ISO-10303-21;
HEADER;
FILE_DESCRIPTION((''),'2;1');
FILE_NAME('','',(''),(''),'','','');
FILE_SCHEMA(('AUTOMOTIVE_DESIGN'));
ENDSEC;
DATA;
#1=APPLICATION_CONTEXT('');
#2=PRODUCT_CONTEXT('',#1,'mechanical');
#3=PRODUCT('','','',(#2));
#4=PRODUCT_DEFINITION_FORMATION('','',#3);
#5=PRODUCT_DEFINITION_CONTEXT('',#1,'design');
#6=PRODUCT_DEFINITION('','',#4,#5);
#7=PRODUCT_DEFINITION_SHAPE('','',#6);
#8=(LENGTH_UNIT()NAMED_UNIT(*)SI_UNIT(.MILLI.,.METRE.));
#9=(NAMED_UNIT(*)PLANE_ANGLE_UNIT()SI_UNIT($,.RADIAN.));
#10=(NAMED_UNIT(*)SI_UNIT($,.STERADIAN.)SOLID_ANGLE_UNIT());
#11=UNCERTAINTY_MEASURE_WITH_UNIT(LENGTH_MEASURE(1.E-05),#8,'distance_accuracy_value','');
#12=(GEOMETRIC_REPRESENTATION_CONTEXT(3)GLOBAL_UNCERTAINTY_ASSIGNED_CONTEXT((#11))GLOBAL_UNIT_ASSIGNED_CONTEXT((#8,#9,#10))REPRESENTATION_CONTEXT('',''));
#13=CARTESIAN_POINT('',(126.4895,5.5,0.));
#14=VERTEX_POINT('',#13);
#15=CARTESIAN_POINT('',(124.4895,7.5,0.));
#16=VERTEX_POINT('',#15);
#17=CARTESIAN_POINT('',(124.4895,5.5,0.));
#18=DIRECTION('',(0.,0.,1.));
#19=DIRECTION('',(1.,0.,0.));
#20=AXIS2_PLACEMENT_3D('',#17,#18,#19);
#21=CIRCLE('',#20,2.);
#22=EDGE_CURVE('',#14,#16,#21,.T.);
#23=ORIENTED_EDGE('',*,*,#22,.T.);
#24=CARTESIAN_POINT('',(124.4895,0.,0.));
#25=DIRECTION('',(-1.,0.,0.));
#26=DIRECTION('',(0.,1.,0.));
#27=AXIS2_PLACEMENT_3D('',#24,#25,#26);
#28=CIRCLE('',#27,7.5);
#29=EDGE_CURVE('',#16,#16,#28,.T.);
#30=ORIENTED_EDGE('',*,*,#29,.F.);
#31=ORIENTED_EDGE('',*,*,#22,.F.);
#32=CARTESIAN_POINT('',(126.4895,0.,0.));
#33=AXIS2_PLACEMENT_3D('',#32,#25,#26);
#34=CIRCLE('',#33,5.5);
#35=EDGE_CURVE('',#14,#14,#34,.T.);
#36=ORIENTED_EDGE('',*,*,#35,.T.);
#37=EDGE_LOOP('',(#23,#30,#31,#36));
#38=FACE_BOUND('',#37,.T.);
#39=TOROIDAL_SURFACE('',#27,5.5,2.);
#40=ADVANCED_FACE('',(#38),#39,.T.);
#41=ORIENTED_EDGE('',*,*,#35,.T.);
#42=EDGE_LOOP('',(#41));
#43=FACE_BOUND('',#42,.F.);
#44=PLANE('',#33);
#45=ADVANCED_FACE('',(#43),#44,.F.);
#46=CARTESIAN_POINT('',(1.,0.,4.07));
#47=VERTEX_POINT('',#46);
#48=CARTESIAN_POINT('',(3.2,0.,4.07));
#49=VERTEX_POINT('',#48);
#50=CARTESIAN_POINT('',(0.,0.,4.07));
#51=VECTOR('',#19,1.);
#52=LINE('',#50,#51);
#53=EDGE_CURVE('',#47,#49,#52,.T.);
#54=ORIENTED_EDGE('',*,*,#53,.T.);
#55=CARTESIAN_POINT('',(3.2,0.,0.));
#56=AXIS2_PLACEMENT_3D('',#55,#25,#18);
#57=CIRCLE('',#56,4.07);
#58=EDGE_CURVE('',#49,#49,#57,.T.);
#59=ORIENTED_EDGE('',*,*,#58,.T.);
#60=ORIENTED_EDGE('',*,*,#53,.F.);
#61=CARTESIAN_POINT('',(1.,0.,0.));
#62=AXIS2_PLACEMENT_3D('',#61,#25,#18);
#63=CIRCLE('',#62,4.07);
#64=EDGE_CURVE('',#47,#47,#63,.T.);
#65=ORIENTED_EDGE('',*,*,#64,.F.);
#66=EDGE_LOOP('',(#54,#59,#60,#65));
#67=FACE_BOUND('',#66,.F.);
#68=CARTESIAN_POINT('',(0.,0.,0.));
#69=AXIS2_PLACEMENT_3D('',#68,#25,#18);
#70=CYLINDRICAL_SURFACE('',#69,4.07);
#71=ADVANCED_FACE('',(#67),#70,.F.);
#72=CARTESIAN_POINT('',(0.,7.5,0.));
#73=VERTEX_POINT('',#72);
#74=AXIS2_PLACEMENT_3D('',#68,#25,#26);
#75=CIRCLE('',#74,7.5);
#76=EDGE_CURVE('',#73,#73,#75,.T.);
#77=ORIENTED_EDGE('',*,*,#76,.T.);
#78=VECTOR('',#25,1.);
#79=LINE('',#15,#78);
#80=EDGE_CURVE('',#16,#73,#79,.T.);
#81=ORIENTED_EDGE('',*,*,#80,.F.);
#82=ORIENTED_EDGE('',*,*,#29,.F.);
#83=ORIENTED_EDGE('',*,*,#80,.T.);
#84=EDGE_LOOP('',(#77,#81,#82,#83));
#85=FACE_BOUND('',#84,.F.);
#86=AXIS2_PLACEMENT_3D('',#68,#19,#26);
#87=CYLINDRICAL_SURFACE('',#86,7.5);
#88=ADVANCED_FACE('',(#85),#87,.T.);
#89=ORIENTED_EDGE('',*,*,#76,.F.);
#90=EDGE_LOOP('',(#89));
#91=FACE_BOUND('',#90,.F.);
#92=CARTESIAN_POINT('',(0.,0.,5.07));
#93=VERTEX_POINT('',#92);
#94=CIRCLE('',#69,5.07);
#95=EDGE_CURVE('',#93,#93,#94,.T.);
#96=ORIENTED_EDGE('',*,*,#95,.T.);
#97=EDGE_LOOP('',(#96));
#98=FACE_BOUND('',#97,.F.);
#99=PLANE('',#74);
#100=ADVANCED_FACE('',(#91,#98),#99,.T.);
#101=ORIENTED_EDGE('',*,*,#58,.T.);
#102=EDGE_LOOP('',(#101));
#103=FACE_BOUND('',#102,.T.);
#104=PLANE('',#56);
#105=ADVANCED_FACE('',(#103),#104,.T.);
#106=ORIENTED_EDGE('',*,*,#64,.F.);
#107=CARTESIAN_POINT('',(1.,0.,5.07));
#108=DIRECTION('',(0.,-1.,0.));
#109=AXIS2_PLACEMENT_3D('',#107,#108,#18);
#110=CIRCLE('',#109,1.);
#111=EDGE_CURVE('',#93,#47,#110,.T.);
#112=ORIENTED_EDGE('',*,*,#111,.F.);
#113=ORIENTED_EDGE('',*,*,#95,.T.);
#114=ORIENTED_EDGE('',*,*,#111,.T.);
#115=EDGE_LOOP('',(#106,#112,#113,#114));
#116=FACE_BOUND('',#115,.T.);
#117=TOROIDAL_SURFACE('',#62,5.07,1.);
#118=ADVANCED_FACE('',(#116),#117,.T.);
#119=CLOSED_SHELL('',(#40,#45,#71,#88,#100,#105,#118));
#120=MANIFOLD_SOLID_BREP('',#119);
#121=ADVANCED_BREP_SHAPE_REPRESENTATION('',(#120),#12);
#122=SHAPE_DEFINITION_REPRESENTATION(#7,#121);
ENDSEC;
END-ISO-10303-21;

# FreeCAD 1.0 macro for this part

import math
import FreeCAD as App
import Part
import Sketcher

V = App.Vector


def edges_at(feature, points):
    """Names of the edges that pass closest to the given points."""
    edges = feature.Shape.Edges
    near = lambda p: min(range(len(edges)), key=lambda i: edges[i].distToShape(Part.Vertex(*p))[0])
    return sorted({f"Edge{near(p) + 1}" for p in points})

doc = App.newDocument("Part")
body = doc.addObject("PartDesign::Body", "Body")

# Sketch on XY plane
sketch1 = doc.addObject("Sketcher::SketchObject", "Sketch")
body.addObject(sketch1)
sketch1.AttachmentSupport = (doc.XY_Plane, [""])
sketch1.MapMode = "FlatFace"
sketch1.addGeometry([
    Part.LineSegment(V(124.5, 7.5, 0), V(0, 7.5, 0)),  # 0
    Part.LineSegment(V(0, 7.5, 0), V(0, 0, 0)),  # 1
    Part.LineSegment(V(0, 0, 0), V(126.5, 0, 0)),  # 2
    Part.LineSegment(V(126.5, 0, 0), V(126.5, 5.5, 0)),  # 3
    Part.ArcOfCircle(Part.Circle(V(124.5, 5.5, 0), V(0, 0, 1), 2), math.radians(0), math.radians(90)),  # 4
], False)
sketch1.addConstraint([
    Sketcher.Constraint("Coincident", 0, 2, 1, 1),
    Sketcher.Constraint("Coincident", 1, 2, 2, 1),
    Sketcher.Constraint("Coincident", 2, 2, 3, 1),
    Sketcher.Constraint("Tangent", 3, 2, 4, 1),
    Sketcher.Constraint("Tangent", 4, 2, 0, 1),
    Sketcher.Constraint("Horizontal", 0),
    Sketcher.Constraint("Vertical", 1),
    Sketcher.Constraint("Horizontal", 2),
    Sketcher.Constraint("Vertical", 3),
    Sketcher.Constraint("Coincident", 1, 2, -1, 1),
    Sketcher.Constraint("Radius", 4, 2.0),
    Sketcher.Constraint("DistanceY", 1, 2, 1, 1, 7.5),
    Sketcher.Constraint("DistanceX", 0, 2, 0, 1, 124.4895),
])
revolution = doc.addObject("PartDesign::Revolution", "Revolution")
body.addObject(revolution)
revolution.Profile = sketch1
revolution.ReferenceAxis = (sketch1, ["H_Axis"])
revolution.Angle = 360

# Sketch on YZ plane
sketch2 = doc.addObject("Sketcher::SketchObject", "Sketch001")
body.addObject(sketch2)
sketch2.AttachmentSupport = (doc.YZ_Plane, [""])
sketch2.MapMode = "FlatFace"
sketch2.addGeometry(Part.Circle(V(0, 0, 0), V(0, 0, 1), 4.1), False)
sketch2.addConstraint([
    Sketcher.Constraint("Coincident", 0, 3, -1, 1),
    Sketcher.Constraint("Diameter", 0, 8.14),
])
pocket1 = doc.addObject("PartDesign::Pocket", "Pocket")
body.addObject(pocket1)
pocket1.Profile = sketch2
pocket1.Length = 3.2
pocket1.Reversed = True
doc.recompute()

fillet = doc.addObject("PartDesign::Fillet", "Fillet")
body.addObject(fillet)
fillet.Base = (pocket1, edges_at(pocket1, [(0, 0, -4.07)]))
fillet.Radius = 1

doc.recompute()
